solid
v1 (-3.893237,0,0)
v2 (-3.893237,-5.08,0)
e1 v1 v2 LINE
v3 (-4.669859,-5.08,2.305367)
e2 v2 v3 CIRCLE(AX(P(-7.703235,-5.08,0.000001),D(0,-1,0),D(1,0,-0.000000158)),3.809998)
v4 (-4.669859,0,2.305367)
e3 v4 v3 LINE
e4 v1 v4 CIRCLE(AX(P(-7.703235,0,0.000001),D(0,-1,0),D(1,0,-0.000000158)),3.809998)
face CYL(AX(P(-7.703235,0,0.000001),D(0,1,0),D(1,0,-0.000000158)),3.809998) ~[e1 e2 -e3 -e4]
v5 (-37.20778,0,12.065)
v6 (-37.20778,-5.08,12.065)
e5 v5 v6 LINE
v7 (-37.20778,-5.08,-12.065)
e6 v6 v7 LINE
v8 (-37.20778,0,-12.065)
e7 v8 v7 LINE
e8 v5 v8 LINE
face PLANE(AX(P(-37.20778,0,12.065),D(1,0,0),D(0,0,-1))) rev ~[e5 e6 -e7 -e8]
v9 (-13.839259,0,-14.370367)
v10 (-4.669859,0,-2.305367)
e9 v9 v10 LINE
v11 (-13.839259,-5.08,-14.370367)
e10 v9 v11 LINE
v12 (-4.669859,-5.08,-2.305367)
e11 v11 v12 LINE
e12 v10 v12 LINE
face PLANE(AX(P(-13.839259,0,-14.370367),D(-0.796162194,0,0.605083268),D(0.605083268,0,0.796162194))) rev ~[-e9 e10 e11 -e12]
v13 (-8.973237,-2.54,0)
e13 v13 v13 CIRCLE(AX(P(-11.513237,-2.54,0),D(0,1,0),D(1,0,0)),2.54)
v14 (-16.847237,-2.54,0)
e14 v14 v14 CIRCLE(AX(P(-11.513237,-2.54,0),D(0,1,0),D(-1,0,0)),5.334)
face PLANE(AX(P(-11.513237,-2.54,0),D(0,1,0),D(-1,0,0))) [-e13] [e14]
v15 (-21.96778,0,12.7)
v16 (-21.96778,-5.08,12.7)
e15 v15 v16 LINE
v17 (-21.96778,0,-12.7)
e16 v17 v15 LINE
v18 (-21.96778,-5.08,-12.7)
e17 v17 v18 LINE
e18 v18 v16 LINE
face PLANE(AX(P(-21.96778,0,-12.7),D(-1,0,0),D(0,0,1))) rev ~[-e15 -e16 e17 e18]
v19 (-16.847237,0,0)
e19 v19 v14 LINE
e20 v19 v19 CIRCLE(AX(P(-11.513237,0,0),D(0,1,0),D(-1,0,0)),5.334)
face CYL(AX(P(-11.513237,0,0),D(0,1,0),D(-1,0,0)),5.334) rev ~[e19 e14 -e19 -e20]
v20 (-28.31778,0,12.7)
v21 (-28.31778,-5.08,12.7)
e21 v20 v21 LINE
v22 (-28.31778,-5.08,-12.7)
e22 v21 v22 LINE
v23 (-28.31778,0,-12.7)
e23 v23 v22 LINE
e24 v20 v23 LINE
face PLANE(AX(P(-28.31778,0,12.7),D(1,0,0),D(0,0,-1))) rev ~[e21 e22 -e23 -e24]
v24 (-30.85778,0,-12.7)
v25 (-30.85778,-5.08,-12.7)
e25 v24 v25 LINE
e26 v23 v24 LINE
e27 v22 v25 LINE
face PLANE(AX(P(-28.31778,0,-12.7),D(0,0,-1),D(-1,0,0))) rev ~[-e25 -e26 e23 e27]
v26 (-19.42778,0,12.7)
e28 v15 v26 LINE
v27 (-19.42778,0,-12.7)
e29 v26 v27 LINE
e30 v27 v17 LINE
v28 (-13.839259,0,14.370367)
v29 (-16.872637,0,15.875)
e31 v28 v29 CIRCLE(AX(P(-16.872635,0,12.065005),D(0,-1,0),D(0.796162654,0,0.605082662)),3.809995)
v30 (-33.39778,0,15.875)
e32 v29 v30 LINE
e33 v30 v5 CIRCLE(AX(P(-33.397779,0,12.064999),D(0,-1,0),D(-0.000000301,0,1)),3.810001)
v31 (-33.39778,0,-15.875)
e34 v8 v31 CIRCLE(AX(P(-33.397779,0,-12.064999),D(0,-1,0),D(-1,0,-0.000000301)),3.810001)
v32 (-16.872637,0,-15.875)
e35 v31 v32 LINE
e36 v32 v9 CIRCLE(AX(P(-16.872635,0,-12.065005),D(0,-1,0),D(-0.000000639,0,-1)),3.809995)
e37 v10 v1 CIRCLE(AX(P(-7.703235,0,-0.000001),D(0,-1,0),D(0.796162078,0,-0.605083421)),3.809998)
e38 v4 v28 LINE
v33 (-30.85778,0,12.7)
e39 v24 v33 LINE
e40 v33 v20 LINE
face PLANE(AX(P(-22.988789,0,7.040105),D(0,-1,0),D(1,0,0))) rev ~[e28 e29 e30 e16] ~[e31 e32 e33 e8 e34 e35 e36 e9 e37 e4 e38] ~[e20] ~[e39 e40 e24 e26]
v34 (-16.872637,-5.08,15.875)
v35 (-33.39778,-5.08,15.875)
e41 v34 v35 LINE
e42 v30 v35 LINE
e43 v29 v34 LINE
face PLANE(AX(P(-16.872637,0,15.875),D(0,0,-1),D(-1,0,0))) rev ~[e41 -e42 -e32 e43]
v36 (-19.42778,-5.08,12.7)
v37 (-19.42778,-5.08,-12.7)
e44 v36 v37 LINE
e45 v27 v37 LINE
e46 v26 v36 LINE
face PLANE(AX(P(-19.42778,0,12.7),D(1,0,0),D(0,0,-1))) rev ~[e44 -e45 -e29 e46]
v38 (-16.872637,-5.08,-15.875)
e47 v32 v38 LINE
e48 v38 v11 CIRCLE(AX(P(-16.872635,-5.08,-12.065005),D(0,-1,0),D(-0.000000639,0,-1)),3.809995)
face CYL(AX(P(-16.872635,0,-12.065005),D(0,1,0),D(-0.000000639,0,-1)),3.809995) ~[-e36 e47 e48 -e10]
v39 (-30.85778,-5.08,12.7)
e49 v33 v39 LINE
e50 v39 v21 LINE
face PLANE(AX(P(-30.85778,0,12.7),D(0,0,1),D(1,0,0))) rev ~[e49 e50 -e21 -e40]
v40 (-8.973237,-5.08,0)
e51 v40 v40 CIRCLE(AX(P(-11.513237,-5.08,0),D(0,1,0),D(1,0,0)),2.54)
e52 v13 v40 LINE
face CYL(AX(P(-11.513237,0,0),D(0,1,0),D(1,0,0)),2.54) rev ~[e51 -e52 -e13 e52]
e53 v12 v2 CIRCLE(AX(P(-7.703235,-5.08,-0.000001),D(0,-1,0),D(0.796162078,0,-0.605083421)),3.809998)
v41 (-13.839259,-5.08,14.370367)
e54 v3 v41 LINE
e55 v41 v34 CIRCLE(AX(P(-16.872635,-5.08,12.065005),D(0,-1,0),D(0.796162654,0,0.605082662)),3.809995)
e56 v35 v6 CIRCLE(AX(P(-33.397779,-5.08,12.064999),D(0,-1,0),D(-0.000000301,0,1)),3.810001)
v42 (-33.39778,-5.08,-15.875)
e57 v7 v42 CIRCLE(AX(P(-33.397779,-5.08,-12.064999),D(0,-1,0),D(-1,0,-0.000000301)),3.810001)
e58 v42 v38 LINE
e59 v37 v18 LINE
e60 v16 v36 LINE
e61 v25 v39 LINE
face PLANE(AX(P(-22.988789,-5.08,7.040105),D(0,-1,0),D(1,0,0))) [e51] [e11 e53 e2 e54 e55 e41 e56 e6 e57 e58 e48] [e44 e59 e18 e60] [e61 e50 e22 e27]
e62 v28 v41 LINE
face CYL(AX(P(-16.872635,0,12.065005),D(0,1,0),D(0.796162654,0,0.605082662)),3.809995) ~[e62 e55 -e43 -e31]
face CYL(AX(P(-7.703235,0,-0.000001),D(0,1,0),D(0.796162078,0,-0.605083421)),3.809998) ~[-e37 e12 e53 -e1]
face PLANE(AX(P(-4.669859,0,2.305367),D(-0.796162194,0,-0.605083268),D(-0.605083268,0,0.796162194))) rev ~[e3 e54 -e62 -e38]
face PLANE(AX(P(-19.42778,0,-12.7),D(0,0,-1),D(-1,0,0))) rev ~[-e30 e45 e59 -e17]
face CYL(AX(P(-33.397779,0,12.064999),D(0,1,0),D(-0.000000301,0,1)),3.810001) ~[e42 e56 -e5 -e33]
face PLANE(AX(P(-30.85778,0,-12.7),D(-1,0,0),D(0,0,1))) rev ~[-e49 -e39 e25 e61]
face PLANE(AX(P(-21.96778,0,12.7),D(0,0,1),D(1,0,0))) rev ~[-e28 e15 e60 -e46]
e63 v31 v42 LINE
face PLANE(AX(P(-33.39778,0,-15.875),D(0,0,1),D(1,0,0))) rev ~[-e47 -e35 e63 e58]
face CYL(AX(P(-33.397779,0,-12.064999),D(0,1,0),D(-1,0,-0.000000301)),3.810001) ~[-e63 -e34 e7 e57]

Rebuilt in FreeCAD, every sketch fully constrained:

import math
import FreeCAD as App
import Part
import Sketcher
Q = App.Units.Quantity

doc = App.newDocument("Part")
params = doc.addObject("Spreadsheet::Sheet", "Params")
for row, (alias, value) in enumerate([
    ("sketch1_diameter", "0.2 in"),
    ("sketch1_height", "1 in"),
    ("sketch1_radius", "0.15 in"),
    ("sketch1_radius2", "0.1499999 in"),
    ("sketch1_width", "0.1 in"),
    ("pad1_length", "0.2 in"),
    ("sketch2_diameter", "0.2 in"),
    ("sketch2_diameter2", "0.42 in"),
    ("pocket1_length", "0.1 in"),
], start=1):
    params.set(f"A{row}", alias)
    params.set(f"B{row}", "=" + value)
    params.setAlias(f"B{row}", alias)

body = doc.addObject("PartDesign::Body", "Body")

# Sketch on XZ plane
sketch1 = body.newObject("Sketcher::SketchObject", "Sketch")
sketch1.AttachmentSupport = (doc.getObject("XZ_Plane"), [""])
sketch1.MapMode = "FlatFace"
sketch1.addGeometry([
    Part.ArcOfCircle(Part.Circle(App.Vector(-33.4, 12.1, 0), App.Vector(0, 0, 1), 3.8), math.radians(90), math.radians(180)),  # 0
    Part.LineSegment(App.Vector(-37.2, 12.1, 0), App.Vector(-37.2, -12.1, 0)),  # 1
    Part.ArcOfCircle(Part.Circle(App.Vector(-33.4, -12.1, 0), App.Vector(0, 0, 1), 3.8), math.radians(-180), math.radians(-90)),  # 2
    Part.LineSegment(App.Vector(-33.4, -15.9, 0), App.Vector(-16.9, -15.9, 0)),  # 3
    Part.ArcOfCircle(Part.Circle(App.Vector(-16.9, -12.1, 0), App.Vector(0, 0, 1), 3.8), math.radians(-90), math.radians(-37)),  # 4
    Part.LineSegment(App.Vector(-13.8, -14.4, 0), App.Vector(-4.7, -2.3, 0)),  # 5
    Part.ArcOfCircle(Part.Circle(App.Vector(-7.7, 0, 0), App.Vector(0, 0, 1), 3.8), math.radians(-37), math.radians(0)),  # 6
    Part.ArcOfCircle(Part.Circle(App.Vector(-7.7, 0, 0), App.Vector(0, 0, 1), 3.8), math.radians(0), math.radians(37)),  # 7
    Part.LineSegment(App.Vector(-4.7, 2.3, 0), App.Vector(-13.8, 14.4, 0)),  # 8
    Part.ArcOfCircle(Part.Circle(App.Vector(-16.9, 12.1, 0), App.Vector(0, 0, 1), 3.8), math.radians(37), math.radians(90)),  # 9
    Part.LineSegment(App.Vector(-16.9, 15.9, 0), App.Vector(-33.4, 15.9, 0)),  # 10
    Part.LineSegment(App.Vector(-30.9, 12.7, 0), App.Vector(-28.3, 12.7, 0)),  # 11
    Part.LineSegment(App.Vector(-28.3, 12.7, 0), App.Vector(-28.3, -12.7, 0)),  # 12
    Part.LineSegment(App.Vector(-28.3, -12.7, 0), App.Vector(-30.9, -12.7, 0)),  # 13
    Part.LineSegment(App.Vector(-30.9, -12.7, 0), App.Vector(-30.9, 12.7, 0)),  # 14
    Part.LineSegment(App.Vector(-22, 12.7, 0), App.Vector(-19.4, 12.7, 0)),  # 15
    Part.LineSegment(App.Vector(-19.4, 12.7, 0), App.Vector(-19.4, -12.7, 0)),  # 16
    Part.LineSegment(App.Vector(-19.4, -12.7, 0), App.Vector(-22, -12.7, 0)),  # 17
    Part.LineSegment(App.Vector(-22, -12.7, 0), App.Vector(-22, 12.7, 0)),  # 18
    Part.Circle(App.Vector(-11.5, 0, 0), App.Vector(0, 0, 1), 2.5),  # 19
], False)
sketch1.addConstraint([
    Sketcher.Constraint("Tangent", 0, 2, 1, 1),
    Sketcher.Constraint("Tangent", 1, 2, 2, 1),
    Sketcher.Constraint("Tangent", 2, 2, 3, 1),
    Sketcher.Constraint("Tangent", 3, 2, 4, 1),
    Sketcher.Constraint("Tangent", 4, 2, 5, 1),
    Sketcher.Constraint("Tangent", 5, 2, 6, 1),
    Sketcher.Constraint("Tangent", 6, 2, 7, 1),
    Sketcher.Constraint("Tangent", 7, 2, 8, 1),
    Sketcher.Constraint("Tangent", 8, 2, 9, 1),
    Sketcher.Constraint("Tangent", 9, 2, 10, 1),
    Sketcher.Constraint("Tangent", 10, 2, 0, 1),
    Sketcher.Constraint("Coincident", 11, 2, 12, 1),
    Sketcher.Constraint("Coincident", 12, 2, 13, 1),
    Sketcher.Constraint("Coincident", 13, 2, 14, 1),
    Sketcher.Constraint("Coincident", 14, 2, 11, 1),
    Sketcher.Constraint("Coincident", 15, 2, 16, 1),
    Sketcher.Constraint("Coincident", 16, 2, 17, 1),
    Sketcher.Constraint("Coincident", 17, 2, 18, 1),
    Sketcher.Constraint("Coincident", 18, 2, 15, 1),
    Sketcher.Constraint("Vertical", 1),
    Sketcher.Constraint("Horizontal", 3),
    Sketcher.Constraint("Horizontal", 10),
    Sketcher.Constraint("Horizontal", 11),
    Sketcher.Constraint("Vertical", 12),
    Sketcher.Constraint("Horizontal", 13),
    Sketcher.Constraint("Vertical", 14),
    Sketcher.Constraint("Horizontal", 15),
    Sketcher.Constraint("Vertical", 16),
    Sketcher.Constraint("Horizontal", 17),
    Sketcher.Constraint("Vertical", 18),
    Sketcher.Constraint("Equal", 0, 2),
    Sketcher.Constraint("Equal", 6, 7),
    Sketcher.Constraint("Equal", 4, 9),
    Sketcher.Constraint("Symmetric", 4, 3, 9, 3, -1),
    Sketcher.Constraint("PointOnObject", 6, 3, -1),
    Sketcher.Constraint("PointOnObject", 19, 3, -1),
    Sketcher.Constraint("PointOnObject", 6, 2, -1),
    Sketcher.Constraint("Horizontal", 14, 2, 15, 2),
    Sketcher.Constraint("Horizontal", 13, 2, 16, 2),
    Sketcher.Constraint("Equal", 13, 15),
    Sketcher.Constraint("Diameter", 19, Q("0.2 in")),
    Sketcher.Constraint("DistanceY", 12, 2, 12, 1, Q("1 in")),
    Sketcher.Constraint("Radius", 0, Q("0.15 in")),
    Sketcher.Constraint("Radius", 6, Q("0.1499999 in")),
    Sketcher.Constraint("DistanceX", 11, 1, 11, 2, Q("0.1 in")),
    Sketcher.Constraint("DistanceY", 1, 2, 1, 1, Q("0.95 in")),
    Sketcher.Constraint("DistanceY", -1, 1, 11, 2, Q("0.5 in")),
    Sketcher.Constraint("DistanceX", 19, 3, 6, 2, Q("0.3 in")),
    Sketcher.Constraint("DistanceX", 0, 3, 11, 2, Q("0.2 in")),
    Sketcher.Constraint("DistanceY", 4, 3, 0, 3, Q("0.9500002 in")),
    Sketcher.Constraint("DistanceX", 11, 2, 15, 2, Q("0.35 in")),
    Sketcher.Constraint("DistanceX", 4, 3, 6, 3, Q("0.361 in")),
    Sketcher.Constraint("DistanceX", 3, 1, 3, 2, Q("16.525143 mm")),
    Sketcher.Constraint("DistanceX", 0, 3, -1, 1, Q("33.397779 mm")),
])
sketch1.setExpression("Constraints[40]", "Params.sketch1_diameter")
sketch1.setExpression("Constraints[41]", "Params.sketch1_height")
sketch1.setExpression("Constraints[42]", "Params.sketch1_radius")
sketch1.setExpression("Constraints[43]", "Params.sketch1_radius2")
sketch1.setExpression("Constraints[44]", "Params.sketch1_width")
pad1 = body.newObject("PartDesign::Pad", "Pad")
pad1.Profile = sketch1
pad1.setExpression("Length", "Params.pad1_length")

# Sketch on XZ plane
sketch2 = body.newObject("Sketcher::SketchObject", "Sketch001")
sketch2.AttachmentSupport = (doc.getObject("XZ_Plane"), [""])
sketch2.MapMode = "FlatFace"
sketch2.addGeometry([
    Part.Circle(App.Vector(-11.5, 0, 0), App.Vector(0, 0, 1), 5.3),
    Part.Circle(App.Vector(-11.5, 0, 0), App.Vector(0, 0, 1), 2.5),
], False)
sketch2.addConstraint([
    Sketcher.Constraint("Coincident", 1, 3, 0, 3),
    Sketcher.Constraint("PointOnObject", 0, 3, -1),
    Sketcher.Constraint("Diameter", 1, Q("0.2 in")),
    Sketcher.Constraint("Diameter", 0, Q("0.42 in")),
    Sketcher.Constraint("DistanceX", 0, 3, -1, 1, Q("11.513237 mm")),
])
sketch2.setExpression("Constraints[2]", "Params.sketch2_diameter")
sketch2.setExpression("Constraints[3]", "Params.sketch2_diameter2")
pocket1 = body.newObject("PartDesign::Pocket", "Pocket")
pocket1.Profile = sketch2
pocket1.setExpression("Length", "Params.pocket1_length")
pocket1.Reversed = True

doc.recompute()
